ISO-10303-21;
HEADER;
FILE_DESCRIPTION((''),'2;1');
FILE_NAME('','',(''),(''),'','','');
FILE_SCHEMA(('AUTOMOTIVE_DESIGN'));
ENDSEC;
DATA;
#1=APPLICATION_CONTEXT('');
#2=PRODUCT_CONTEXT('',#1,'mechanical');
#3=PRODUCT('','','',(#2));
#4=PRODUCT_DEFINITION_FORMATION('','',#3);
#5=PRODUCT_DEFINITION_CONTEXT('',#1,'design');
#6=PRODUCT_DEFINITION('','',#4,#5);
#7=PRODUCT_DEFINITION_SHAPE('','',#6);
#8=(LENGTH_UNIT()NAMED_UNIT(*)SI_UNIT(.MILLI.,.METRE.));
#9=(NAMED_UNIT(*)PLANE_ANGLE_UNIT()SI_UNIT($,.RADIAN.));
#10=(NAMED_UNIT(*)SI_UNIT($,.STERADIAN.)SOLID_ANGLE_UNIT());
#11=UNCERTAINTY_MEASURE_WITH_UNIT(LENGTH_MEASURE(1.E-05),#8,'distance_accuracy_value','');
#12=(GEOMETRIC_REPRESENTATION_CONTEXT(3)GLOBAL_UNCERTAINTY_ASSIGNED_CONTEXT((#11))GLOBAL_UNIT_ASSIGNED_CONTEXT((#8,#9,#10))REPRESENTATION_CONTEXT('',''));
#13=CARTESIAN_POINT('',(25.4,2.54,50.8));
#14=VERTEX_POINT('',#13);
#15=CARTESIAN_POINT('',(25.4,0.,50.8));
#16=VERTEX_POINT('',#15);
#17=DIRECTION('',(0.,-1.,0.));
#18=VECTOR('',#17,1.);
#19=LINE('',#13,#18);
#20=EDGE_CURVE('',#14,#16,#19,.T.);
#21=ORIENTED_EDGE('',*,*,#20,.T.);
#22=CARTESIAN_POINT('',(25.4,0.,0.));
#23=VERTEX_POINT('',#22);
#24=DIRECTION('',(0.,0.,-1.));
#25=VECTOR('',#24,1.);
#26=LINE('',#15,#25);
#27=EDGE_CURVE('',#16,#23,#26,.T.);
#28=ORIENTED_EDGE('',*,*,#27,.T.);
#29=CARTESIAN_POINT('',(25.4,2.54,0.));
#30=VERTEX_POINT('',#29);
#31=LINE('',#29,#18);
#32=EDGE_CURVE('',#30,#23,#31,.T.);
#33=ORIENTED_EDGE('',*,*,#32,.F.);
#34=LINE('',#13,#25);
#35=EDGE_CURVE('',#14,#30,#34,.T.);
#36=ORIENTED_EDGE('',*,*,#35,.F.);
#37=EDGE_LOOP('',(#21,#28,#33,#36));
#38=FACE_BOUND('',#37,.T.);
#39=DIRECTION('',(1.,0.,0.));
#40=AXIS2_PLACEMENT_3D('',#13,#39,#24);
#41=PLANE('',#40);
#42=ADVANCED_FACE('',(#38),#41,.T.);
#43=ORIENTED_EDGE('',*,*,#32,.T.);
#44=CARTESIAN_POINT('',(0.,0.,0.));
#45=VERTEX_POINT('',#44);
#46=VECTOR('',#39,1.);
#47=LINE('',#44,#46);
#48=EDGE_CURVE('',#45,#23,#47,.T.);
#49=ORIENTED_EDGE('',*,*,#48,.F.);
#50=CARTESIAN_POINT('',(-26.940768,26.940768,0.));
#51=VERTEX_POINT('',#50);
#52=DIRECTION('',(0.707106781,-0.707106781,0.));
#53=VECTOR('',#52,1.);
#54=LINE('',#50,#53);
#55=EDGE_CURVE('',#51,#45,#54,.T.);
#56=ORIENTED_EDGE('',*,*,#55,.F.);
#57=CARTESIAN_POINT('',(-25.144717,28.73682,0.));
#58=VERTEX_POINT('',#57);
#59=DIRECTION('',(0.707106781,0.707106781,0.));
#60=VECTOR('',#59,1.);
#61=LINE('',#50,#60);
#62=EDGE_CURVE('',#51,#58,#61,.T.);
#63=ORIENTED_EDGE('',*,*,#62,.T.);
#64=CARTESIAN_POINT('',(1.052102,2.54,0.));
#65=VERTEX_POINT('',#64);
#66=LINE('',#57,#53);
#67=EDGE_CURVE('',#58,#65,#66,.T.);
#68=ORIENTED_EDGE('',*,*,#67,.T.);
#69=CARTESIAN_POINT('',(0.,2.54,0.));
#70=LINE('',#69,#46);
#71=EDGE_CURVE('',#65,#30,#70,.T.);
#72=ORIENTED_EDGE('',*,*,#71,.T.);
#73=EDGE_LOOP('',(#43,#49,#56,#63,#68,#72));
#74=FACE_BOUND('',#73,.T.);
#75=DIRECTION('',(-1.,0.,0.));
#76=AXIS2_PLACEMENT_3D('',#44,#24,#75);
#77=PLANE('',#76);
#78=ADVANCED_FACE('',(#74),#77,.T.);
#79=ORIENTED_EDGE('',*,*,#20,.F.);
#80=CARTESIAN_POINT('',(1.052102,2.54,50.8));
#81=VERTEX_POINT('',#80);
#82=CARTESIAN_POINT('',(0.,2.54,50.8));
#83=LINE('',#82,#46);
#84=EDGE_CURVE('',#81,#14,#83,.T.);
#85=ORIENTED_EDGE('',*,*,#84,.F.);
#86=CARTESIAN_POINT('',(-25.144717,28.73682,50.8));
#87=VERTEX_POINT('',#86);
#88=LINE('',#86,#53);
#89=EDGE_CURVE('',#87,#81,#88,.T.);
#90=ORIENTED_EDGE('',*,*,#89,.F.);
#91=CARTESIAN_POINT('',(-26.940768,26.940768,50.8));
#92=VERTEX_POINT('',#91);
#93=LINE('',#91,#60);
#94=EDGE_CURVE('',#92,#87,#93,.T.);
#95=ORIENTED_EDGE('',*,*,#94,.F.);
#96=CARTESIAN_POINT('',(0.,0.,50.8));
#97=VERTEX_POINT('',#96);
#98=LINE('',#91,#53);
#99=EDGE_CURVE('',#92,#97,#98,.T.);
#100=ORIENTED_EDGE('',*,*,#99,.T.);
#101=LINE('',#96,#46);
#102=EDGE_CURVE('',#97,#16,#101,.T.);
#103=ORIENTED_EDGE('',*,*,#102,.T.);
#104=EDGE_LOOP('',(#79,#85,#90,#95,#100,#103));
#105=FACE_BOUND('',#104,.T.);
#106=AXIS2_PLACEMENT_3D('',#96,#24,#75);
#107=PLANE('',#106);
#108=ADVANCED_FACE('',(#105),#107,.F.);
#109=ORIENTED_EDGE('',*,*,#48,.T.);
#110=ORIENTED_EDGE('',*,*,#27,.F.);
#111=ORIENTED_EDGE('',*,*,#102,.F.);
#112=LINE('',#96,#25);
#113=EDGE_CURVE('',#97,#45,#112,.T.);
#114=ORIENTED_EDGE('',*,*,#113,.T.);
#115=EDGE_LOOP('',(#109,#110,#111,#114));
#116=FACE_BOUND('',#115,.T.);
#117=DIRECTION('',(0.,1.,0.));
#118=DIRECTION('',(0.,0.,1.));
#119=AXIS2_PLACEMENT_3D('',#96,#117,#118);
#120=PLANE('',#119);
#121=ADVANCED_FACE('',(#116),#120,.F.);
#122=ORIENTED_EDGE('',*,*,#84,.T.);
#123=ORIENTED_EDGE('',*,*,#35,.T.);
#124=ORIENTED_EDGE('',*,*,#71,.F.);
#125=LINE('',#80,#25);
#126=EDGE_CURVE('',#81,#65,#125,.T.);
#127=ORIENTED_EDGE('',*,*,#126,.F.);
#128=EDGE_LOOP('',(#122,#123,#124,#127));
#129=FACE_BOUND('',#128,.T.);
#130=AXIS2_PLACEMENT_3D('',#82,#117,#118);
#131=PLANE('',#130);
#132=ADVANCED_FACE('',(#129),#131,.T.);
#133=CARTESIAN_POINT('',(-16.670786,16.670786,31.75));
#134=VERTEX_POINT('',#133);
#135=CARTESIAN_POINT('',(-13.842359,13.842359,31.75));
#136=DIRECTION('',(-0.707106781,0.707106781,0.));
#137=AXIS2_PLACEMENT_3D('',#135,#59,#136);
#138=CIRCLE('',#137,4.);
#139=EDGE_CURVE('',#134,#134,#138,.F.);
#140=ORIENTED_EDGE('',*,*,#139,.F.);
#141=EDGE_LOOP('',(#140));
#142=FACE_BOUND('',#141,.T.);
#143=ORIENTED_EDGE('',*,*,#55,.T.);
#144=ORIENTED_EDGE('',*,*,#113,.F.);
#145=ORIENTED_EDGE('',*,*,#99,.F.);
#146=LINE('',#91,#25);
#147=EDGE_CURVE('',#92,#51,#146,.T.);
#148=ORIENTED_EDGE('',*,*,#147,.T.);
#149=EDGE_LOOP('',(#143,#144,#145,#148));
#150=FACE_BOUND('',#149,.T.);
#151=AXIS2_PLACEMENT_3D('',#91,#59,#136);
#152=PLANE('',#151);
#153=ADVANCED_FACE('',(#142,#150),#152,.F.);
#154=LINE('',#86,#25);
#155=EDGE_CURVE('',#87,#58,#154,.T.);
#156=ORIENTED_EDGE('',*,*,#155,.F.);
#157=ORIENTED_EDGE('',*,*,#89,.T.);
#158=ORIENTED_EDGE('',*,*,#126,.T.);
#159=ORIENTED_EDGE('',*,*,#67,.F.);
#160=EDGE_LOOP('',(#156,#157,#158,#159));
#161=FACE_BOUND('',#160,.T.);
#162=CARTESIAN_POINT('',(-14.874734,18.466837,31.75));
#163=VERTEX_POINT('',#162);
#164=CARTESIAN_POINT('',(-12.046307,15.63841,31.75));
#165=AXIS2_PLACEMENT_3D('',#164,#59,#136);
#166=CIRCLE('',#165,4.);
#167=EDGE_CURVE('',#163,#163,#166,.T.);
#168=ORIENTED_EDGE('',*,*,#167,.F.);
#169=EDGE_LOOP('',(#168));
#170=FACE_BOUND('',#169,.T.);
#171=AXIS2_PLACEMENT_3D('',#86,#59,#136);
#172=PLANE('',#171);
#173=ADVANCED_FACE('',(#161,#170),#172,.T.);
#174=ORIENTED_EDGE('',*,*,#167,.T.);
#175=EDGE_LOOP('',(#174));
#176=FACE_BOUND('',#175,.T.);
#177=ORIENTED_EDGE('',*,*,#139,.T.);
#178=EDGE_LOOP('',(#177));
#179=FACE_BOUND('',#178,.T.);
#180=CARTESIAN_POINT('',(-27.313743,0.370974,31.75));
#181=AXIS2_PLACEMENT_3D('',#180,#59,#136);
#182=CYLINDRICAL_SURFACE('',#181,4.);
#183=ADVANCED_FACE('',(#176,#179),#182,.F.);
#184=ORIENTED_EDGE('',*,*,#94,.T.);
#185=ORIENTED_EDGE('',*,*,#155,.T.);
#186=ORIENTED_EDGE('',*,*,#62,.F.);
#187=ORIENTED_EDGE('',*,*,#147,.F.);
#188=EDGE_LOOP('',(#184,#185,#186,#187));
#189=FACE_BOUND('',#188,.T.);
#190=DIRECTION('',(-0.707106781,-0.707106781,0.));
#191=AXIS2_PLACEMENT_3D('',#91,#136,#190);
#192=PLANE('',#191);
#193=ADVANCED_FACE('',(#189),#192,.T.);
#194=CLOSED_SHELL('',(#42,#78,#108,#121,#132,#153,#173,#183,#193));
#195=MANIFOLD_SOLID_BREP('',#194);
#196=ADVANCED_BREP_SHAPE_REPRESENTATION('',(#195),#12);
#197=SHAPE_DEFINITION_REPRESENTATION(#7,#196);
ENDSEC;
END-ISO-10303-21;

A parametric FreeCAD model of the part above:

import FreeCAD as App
import Part
import Sketcher
from FreeCAD import Vector
Q = App.Units.Quantity


def add_polygon(sketch, points):
    """Adds a closed chain of lines whose ends are joined by coincident constraints."""
    first, n = sketch.GeometryCount, len(points)
    for a, b in zip(points, points[1:] + points[:1]):
        sketch.addGeometry(Part.LineSegment(App.Vector(*a, 0), App.Vector(*b, 0)), False)
    for i in range(n):
        sketch.addConstraint(Sketcher.Constraint("Coincident", first + i, 2, first + (i + 1) % n, 1))

doc = App.newDocument("Part")
params = doc.addObject("Spreadsheet::Sheet", "Params")
for row, (alias, value) in enumerate([
    ("sketch1_width", "1 in"),
    ("sketch1_height", "0.1 in"),
    ("sketch1_length", "1.5 in"),
    ("sketch1_length2", "0.1 in"),
    ("pad1_length", "2 in"),
], start=1):
    params.set(f"A{row}", alias)
    params.set(f"B{row}", "=" + value)
    params.setAlias(f"B{row}", alias)

body = doc.addObject("PartDesign::Body", "Body")

sketch1 = body.newObject("Sketcher::SketchObject", "Sketch")
sketch1.AttachmentSupport = (doc.getObject("XY_Plane"), [""])
sketch1.MapMode = "FlatFace"
add_polygon(sketch1, [(-26.9, 26.9), (0, 0), (25.4, 0), (25.4, 2.5), (1.1, 2.5), (-25.1, 28.7)])
sketch1.addConstraint([
    Sketcher.Constraint("Horizontal", 1),
    Sketcher.Constraint("Vertical", 2),
    Sketcher.Constraint("Horizontal", 3),
    Sketcher.Constraint("Coincident", 0, 2, -1, 1),
    Sketcher.Constraint("Parallel", 0, 4),
    Sketcher.Constraint("Perpendicular", 4, 5),
    Sketcher.Constraint("DistanceX", 1, 1, 1, 2, Q("1 in")),
    Sketcher.Constraint("DistanceY", 2, 1, 2, 2, Q("0.1 in")),
    Sketcher.Constraint("Angle", 0, Q("-45 deg")),
    Sketcher.Constraint("Distance", 0, Q("1.5 in")),
    Sketcher.Constraint("Distance", 5, Q("0.1 in")),
])
sketch1.setExpression("Constraints[12]", "Params.sketch1_width")
sketch1.setExpression("Constraints[13]", "Params.sketch1_height")
sketch1.setExpression("Constraints[15]", "Params.sketch1_length")
sketch1.setExpression("Constraints[16]", "Params.sketch1_length2")
pad1 = body.newObject("PartDesign::Pad", "Pad")
pad1.Profile = sketch1
pad1.setExpression("Length", "Params.pad1_length")

sketch2 = body.newObject("Sketcher::SketchObject", "Sketch001")
sketch2.Placement = App.Placement(Vector(1.796051, 1.796051, 0), App.Rotation(Vector(0, 0, -1), Vector(-0.707106781, 0.707106781, 0), Vector(0.707106781, 0.707106781, 0), "ZXY"))
sketch2.addGeometry(Part.Circle(Vector(-31.8, 19.6, 0), Vector(0, 0, 1), 4), False)
sketch2.addConstraint([
    Sketcher.Constraint("Diameter", 0, 8.0),
    Sketcher.Constraint("DistanceX", 0, 3, -1, 1, Q("1.25 in")),
    Sketcher.Constraint("DistanceY", -1, 1, 0, 3, 19.576051),
])
pocket1 = body.newObject("PartDesign::Pocket", "Pocket")
pocket1.Profile = sketch2
pocket1.Type = "UpToFirst"

doc.recompute()
